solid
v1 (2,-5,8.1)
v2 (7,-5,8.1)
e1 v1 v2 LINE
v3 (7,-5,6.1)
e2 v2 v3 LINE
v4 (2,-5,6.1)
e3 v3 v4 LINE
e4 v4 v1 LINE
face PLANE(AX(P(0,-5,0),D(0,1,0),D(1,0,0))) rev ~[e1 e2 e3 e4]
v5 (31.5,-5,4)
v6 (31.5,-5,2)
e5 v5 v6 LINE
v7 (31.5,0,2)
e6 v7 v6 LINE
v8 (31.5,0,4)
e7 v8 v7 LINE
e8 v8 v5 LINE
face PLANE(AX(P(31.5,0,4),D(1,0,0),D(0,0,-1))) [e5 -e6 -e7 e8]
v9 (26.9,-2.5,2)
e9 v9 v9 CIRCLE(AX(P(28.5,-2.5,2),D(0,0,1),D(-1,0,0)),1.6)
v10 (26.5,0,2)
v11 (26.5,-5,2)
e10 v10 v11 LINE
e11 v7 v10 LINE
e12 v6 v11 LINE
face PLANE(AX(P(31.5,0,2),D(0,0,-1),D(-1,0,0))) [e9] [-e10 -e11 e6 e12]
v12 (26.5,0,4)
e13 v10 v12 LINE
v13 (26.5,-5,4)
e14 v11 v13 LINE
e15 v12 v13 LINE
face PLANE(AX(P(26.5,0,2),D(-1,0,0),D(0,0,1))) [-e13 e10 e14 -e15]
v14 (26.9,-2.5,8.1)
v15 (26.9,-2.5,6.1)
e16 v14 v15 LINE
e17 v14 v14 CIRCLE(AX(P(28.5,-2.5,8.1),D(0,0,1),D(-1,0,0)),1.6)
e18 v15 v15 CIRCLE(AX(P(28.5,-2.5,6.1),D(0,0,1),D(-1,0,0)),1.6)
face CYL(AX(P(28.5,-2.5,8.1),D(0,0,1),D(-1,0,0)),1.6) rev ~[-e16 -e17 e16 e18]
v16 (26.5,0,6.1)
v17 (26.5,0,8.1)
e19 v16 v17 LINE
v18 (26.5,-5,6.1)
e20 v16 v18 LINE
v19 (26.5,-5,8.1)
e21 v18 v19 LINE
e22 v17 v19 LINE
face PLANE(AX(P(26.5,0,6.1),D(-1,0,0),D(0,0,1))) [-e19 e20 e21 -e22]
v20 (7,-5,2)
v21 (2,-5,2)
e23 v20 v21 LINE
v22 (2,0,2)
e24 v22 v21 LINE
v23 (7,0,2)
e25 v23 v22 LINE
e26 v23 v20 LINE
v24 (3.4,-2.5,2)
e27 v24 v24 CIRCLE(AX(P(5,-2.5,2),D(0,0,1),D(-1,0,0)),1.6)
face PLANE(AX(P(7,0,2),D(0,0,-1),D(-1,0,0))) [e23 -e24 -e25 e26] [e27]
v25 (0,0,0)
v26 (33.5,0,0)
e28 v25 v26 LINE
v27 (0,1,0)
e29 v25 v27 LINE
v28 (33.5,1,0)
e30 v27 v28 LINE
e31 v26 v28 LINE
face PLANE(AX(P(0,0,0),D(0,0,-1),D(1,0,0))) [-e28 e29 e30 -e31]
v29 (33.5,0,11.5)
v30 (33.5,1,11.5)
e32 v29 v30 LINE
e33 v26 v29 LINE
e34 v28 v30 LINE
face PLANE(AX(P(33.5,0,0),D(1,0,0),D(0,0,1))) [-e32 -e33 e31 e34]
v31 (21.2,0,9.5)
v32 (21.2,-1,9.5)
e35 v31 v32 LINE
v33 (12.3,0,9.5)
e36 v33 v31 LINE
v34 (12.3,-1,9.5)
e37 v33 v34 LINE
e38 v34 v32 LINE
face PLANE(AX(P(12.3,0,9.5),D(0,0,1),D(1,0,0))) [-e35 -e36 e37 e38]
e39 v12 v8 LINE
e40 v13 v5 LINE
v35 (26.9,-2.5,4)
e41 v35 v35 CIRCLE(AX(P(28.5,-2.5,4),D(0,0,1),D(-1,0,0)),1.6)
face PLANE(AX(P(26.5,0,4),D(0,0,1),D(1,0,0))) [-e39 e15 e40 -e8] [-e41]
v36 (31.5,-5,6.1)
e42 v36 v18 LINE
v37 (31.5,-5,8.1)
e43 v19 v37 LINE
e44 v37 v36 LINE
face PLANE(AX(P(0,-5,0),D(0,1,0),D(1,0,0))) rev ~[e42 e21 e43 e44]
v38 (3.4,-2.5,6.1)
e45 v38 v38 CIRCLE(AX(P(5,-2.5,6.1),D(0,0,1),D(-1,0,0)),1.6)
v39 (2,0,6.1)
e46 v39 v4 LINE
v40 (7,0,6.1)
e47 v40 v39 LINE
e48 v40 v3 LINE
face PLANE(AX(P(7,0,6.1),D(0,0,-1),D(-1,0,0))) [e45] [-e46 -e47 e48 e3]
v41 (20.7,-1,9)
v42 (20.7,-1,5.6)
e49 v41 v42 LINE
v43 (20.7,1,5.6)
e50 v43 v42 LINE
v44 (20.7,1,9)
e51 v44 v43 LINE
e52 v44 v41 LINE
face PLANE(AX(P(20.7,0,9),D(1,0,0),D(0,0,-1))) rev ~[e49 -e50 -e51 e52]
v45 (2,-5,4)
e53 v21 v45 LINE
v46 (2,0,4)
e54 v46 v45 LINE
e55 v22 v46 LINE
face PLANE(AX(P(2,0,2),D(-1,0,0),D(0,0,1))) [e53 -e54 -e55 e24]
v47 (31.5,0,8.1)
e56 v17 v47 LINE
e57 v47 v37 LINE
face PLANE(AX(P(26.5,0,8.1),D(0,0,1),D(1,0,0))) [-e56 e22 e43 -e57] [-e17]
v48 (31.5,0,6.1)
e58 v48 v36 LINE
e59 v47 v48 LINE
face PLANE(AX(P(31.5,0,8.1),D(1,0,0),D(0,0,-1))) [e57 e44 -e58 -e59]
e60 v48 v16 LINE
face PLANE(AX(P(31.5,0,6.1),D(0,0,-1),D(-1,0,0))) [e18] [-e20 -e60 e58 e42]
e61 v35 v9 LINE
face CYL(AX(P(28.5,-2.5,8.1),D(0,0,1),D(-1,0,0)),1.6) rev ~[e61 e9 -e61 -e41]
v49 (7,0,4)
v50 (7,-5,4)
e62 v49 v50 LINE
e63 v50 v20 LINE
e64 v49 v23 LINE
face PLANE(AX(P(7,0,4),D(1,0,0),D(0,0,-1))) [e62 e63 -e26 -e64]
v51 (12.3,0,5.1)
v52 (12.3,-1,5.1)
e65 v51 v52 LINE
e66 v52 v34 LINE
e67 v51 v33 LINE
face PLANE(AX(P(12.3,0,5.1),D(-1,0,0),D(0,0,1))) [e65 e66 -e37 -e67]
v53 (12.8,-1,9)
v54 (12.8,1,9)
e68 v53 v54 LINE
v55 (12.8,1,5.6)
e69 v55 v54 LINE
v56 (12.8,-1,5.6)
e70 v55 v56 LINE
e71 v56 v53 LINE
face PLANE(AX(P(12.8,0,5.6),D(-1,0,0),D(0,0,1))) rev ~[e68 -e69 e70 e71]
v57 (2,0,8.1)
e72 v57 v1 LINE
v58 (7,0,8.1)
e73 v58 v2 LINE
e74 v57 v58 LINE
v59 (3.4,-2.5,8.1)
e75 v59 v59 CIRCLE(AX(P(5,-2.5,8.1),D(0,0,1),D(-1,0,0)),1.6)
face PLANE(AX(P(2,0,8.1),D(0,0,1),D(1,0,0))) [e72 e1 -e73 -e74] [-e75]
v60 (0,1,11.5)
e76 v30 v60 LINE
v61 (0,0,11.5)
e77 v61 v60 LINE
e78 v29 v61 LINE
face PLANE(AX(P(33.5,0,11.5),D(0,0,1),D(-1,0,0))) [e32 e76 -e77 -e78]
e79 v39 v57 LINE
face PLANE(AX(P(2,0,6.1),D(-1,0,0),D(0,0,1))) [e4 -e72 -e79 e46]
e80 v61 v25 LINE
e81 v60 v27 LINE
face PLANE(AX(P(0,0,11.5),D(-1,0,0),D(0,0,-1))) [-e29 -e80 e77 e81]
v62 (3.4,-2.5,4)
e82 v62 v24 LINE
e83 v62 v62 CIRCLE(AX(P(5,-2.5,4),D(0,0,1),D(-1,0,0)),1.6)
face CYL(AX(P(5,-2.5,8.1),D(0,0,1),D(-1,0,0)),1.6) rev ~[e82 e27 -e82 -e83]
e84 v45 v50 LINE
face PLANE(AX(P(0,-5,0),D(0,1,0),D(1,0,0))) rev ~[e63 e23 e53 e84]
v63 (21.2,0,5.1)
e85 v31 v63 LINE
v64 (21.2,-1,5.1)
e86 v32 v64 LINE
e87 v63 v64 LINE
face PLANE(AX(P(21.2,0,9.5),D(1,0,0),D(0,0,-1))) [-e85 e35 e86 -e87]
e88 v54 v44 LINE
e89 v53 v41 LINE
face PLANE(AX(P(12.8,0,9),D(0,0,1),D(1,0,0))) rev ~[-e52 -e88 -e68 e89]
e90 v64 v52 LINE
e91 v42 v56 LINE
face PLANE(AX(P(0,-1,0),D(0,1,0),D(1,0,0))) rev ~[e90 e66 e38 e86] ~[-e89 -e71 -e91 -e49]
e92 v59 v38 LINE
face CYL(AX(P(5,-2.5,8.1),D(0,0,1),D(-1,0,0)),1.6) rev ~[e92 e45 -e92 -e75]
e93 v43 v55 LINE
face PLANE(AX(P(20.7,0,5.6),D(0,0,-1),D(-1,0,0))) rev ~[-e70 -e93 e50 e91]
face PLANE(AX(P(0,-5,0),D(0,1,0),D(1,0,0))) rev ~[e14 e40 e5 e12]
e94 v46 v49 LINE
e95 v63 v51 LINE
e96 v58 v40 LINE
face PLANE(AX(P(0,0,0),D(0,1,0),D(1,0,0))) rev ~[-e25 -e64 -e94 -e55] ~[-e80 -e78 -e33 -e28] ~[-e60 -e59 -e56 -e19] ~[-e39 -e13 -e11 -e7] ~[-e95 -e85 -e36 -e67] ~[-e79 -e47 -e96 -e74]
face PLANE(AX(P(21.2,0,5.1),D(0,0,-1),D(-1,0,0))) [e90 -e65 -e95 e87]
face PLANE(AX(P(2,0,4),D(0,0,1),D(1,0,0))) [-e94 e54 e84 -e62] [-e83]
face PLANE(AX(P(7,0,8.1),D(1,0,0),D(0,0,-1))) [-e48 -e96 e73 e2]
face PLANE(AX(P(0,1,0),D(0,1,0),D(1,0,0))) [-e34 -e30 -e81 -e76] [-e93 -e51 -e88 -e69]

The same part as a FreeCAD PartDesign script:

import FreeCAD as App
import Part
import Sketcher

doc = App.newDocument("Part")
body = doc.addObject("PartDesign::Body", "Body")

# Sketch on XZ plane
sketch1 = doc.addObject("Sketcher::SketchObject", "Sketch")
body.addObject(sketch1)
sketch1.AttachmentSupport = (doc.XZ_Plane, [""])
sketch1.MapMode = "FlatFace"
sketch1.addGeometry([
    Part.LineSegment(App.Vector(33.5, 0, 0), App.Vector(0, 0, 0)),  # 0
    Part.LineSegment(App.Vector(0, 0, 0), App.Vector(0, 11.5, 0)),  # 1
    Part.LineSegment(App.Vector(0, 11.5, 0), App.Vector(33.5, 11.5, 0)),  # 2
    Part.LineSegment(App.Vector(33.5, 11.5, 0), App.Vector(33.5, 0, 0)),  # 3
    Part.LineSegment(App.Vector(20.7, 9, 0), App.Vector(12.8, 9, 0)),  # 4
    Part.LineSegment(App.Vector(12.8, 9, 0), App.Vector(12.8, 5.6, 0)),  # 5
    Part.LineSegment(App.Vector(12.8, 5.6, 0), App.Vector(20.7, 5.6, 0)),  # 6
    Part.LineSegment(App.Vector(20.7, 5.6, 0), App.Vector(20.7, 9, 0)),  # 7
], False)
sketch1.addConstraint([
    Sketcher.Constraint("Coincident", 0, 2, 1, 1),
    Sketcher.Constraint("Coincident", 1, 2, 2, 1),
    Sketcher.Constraint("Coincident", 2, 2, 3, 1),
    Sketcher.Constraint("Coincident", 3, 2, 0, 1),
    Sketcher.Constraint("Coincident", 4, 2, 5, 1),
    Sketcher.Constraint("Coincident", 5, 2, 6, 1),
    Sketcher.Constraint("Coincident", 6, 2, 7, 1),
    Sketcher.Constraint("Coincident", 7, 2, 4, 1),
    Sketcher.Constraint("Horizontal", 0),
    Sketcher.Constraint("Vertical", 1),
    Sketcher.Constraint("Horizontal", 2),
    Sketcher.Constraint("Vertical", 3),
    Sketcher.Constraint("Horizontal", 4),
    Sketcher.Constraint("Vertical", 5),
    Sketcher.Constraint("Horizontal", 6),
    Sketcher.Constraint("Vertical", 7),
    Sketcher.Constraint("Coincident", 0, 2, -1, 1),
    Sketcher.Constraint("DistanceX", 4, 2, 4, 1, 7.9),
    Sketcher.Constraint("DistanceY", 5, 2, 5, 1, 3.4),
    Sketcher.Constraint("DistanceX", 0, 2, 0, 1, 33.5),
    Sketcher.Constraint("DistanceY", 1, 1, 1, 2, 11.5),
    Sketcher.Constraint("DistanceY", -1, 1, 4, 2, 9.0),
    Sketcher.Constraint("DistanceX", -1, 1, 4, 2, 12.8),
])
pad1 = doc.addObject("PartDesign::Pad", "Pad")
body.addObject(pad1)
pad1.Profile = sketch1
pad1.Length = 1
pad1.Reversed = True

# Sketch on XZ plane
sketch2 = doc.addObject("Sketcher::SketchObject", "Sketch001")
body.addObject(sketch2)
sketch2.AttachmentSupport = (doc.XZ_Plane, [""])
sketch2.MapMode = "FlatFace"
sketch2.addGeometry([
    Part.LineSegment(App.Vector(12.3, 5.1, 0), App.Vector(12.3, 9.5, 0)),  # 0
    Part.LineSegment(App.Vector(12.3, 9.5, 0), App.Vector(21.2, 9.5, 0)),  # 1
    Part.LineSegment(App.Vector(21.2, 9.5, 0), App.Vector(21.2, 5.1, 0)),  # 2
    Part.LineSegment(App.Vector(21.2, 5.1, 0), App.Vector(12.3, 5.1, 0)),  # 3
    Part.LineSegment(App.Vector(20.7, 9, 0), App.Vector(12.8, 9, 0)),  # 4
    Part.LineSegment(App.Vector(12.8, 9, 0), App.Vector(12.8, 5.6, 0)),  # 5
    Part.LineSegment(App.Vector(12.8, 5.6, 0), App.Vector(20.7, 5.6, 0)),  # 6
    Part.LineSegment(App.Vector(20.7, 5.6, 0), App.Vector(20.7, 9, 0)),  # 7
], False)
sketch2.addConstraint([
    Sketcher.Constraint("Coincident", 0, 2, 1, 1),
    Sketcher.Constraint("Coincident", 1, 2, 2, 1),
    Sketcher.Constraint("Coincident", 2, 2, 3, 1),
    Sketcher.Constraint("Coincident", 3, 2, 0, 1),
    Sketcher.Constraint("Coincident", 4, 2, 5, 1),
    Sketcher.Constraint("Coincident", 5, 2, 6, 1),
    Sketcher.Constraint("Coincident", 6, 2, 7, 1),
    Sketcher.Constraint("Coincident", 7, 2, 4, 1),
    Sketcher.Constraint("Vertical", 0),
    Sketcher.Constraint("Horizontal", 1),
    Sketcher.Constraint("Vertical", 2),
    Sketcher.Constraint("Horizontal", 3),
    Sketcher.Constraint("Horizontal", 4),
    Sketcher.Constraint("Vertical", 5),
    Sketcher.Constraint("Horizontal", 6),
    Sketcher.Constraint("Vertical", 7),
    Sketcher.Constraint("DistanceX", 1, 1, 1, 2, 8.9),
    Sketcher.Constraint("DistanceX", 4, 2, 4, 1, 7.9),
    Sketcher.Constraint("DistanceY", 0, 1, 0, 2, 4.4),
    Sketcher.Constraint("DistanceY", 5, 2, 5, 1, 3.4),
    Sketcher.Constraint("DistanceX", 0, 2, 4, 2, 0.5),
    Sketcher.Constraint("DistanceY", 4, 2, 0, 2, 0.5),
    Sketcher.Constraint("DistanceY", -1, 1, 4, 2, 9.0),
    Sketcher.Constraint("DistanceX", -1, 1, 0, 2, 12.3),
])
pad2 = doc.addObject("PartDesign::Pad", "Pad001")
body.addObject(pad2)
pad2.Profile = sketch2
pad2.Length = 1

# Sketch on XZ plane
sketch3 = doc.addObject("Sketcher::SketchObject", "Sketch002")
body.addObject(sketch3)
sketch3.AttachmentSupport = (doc.XZ_Plane, [""])
sketch3.MapMode = "FlatFace"
sketch3.addGeometry([
    Part.LineSegment(App.Vector(2, 6.1, 0), App.Vector(2, 8.1, 0)),  # 0
    Part.LineSegment(App.Vector(2, 8.1, 0), App.Vector(7, 8.1, 0)),  # 1
    Part.LineSegment(App.Vector(7, 8.1, 0), App.Vector(7, 6.1, 0)),  # 2
    Part.LineSegment(App.Vector(7, 6.1, 0), App.Vector(2, 6.1, 0)),  # 3
    Part.LineSegment(App.Vector(2, 2, 0), App.Vector(2, 4, 0)),  # 4
    Part.LineSegment(App.Vector(2, 4, 0), App.Vector(7, 4, 0)),  # 5
    Part.LineSegment(App.Vector(7, 4, 0), App.Vector(7, 2, 0)),  # 6
    Part.LineSegment(App.Vector(7, 2, 0), App.Vector(2, 2, 0)),  # 7
    Part.LineSegment(App.Vector(26.5, 6.1, 0), App.Vector(26.5, 8.1, 0)),  # 8
    Part.LineSegment(App.Vector(26.5, 8.1, 0), App.Vector(31.5, 8.1, 0)),  # 9
    Part.LineSegment(App.Vector(31.5, 8.1, 0), App.Vector(31.5, 6.1, 0)),  # 10
    Part.LineSegment(App.Vector(31.5, 6.1, 0), App.Vector(26.5, 6.1, 0)),  # 11
    Part.LineSegment(App.Vector(26.5, 2, 0), App.Vector(26.5, 4, 0)),  # 12
    Part.LineSegment(App.Vector(26.5, 4, 0), App.Vector(31.5, 4, 0)),  # 13
    Part.LineSegment(App.Vector(31.5, 4, 0), App.Vector(31.5, 2, 0)),  # 14
    Part.LineSegment(App.Vector(31.5, 2, 0), App.Vector(26.5, 2, 0)),  # 15
], False)
sketch3.addConstraint([
    Sketcher.Constraint("Coincident", 0, 2, 1, 1),
    Sketcher.Constraint("Coincident", 1, 2, 2, 1),
    Sketcher.Constraint("Coincident", 2, 2, 3, 1),
    Sketcher.Constraint("Coincident", 3, 2, 0, 1),
    Sketcher.Constraint("Coincident", 4, 2, 5, 1),
    Sketcher.Constraint("Coincident", 5, 2, 6, 1),
    Sketcher.Constraint("Coincident", 6, 2, 7, 1),
    Sketcher.Constraint("Coincident", 7, 2, 4, 1),
    Sketcher.Constraint("Coincident", 8, 2, 9, 1),
    Sketcher.Constraint("Coincident", 9, 2, 10, 1),
    Sketcher.Constraint("Coincident", 10, 2, 11, 1),
    Sketcher.Constraint("Coincident", 11, 2, 8, 1),
    Sketcher.Constraint("Coincident", 12, 2, 13, 1),
    Sketcher.Constraint("Coincident", 13, 2, 14, 1),
    Sketcher.Constraint("Coincident", 14, 2, 15, 1),
    Sketcher.Constraint("Coincident", 15, 2, 12, 1),
    Sketcher.Constraint("Vertical", 0),
    Sketcher.Constraint("Horizontal", 1),
    Sketcher.Constraint("Vertical", 2),
    Sketcher.Constraint("Horizontal", 3),
    Sketcher.Constraint("Vertical", 4),
    Sketcher.Constraint("Horizontal", 5),
    Sketcher.Constraint("Vertical", 6),
    Sketcher.Constraint("Horizontal", 7),
    Sketcher.Constraint("Vertical", 8),
    Sketcher.Constraint("Horizontal", 9),
    Sketcher.Constraint("Vertical", 10),
    Sketcher.Constraint("Horizontal", 11),
    Sketcher.Constraint("Vertical", 12),
    Sketcher.Constraint("Horizontal", 13),
    Sketcher.Constraint("Vertical", 14),
    Sketcher.Constraint("Horizontal", 15),
    Sketcher.Constraint("Horizontal", 1, 2, 8, 2),
    Sketcher.Constraint("Horizontal", 3, 2, 10, 2),
    Sketcher.Constraint("Horizontal", 5, 2, 12, 2),
    Sketcher.Constraint("Horizontal", 7, 2, 14, 2),
    Sketcher.Constraint("Vertical", 3, 2, 4, 2),
    Sketcher.Constraint("Vertical", 2, 2, 5, 2),
    Sketcher.Constraint("Vertical", 11, 2, 12, 2),
    Sketcher.Constraint("Vertical", 10, 2, 13, 2),
    Sketcher.Constraint("Equal", 7, 9),
    Sketcher.Constraint("Equal", 2, 4),
    Sketcher.Constraint("DistanceX", 1, 1, 1, 2, 5.0),
    Sketcher.Constraint("DistanceY", 0, 1, 0, 2, 2.0),
    Sketcher.Constraint("DistanceX", -1, 1, 0, 2, 2.0),
    Sketcher.Constraint("DistanceY", -1, 1, 6, 2, 2.0),
    Sketcher.Constraint("DistanceY", -1, 1, 0, 2, 8.1),
    Sketcher.Constraint("DistanceX", -1, 1, 8, 2, 26.5),
])
pad3 = doc.addObject("PartDesign::Pad", "Pad002")
body.addObject(pad3)
pad3.Profile = sketch3
pad3.Length = 5

# Sketch on XY plane
sketch4 = doc.addObject("Sketcher::SketchObject", "Sketch003")
body.addObject(sketch4)
sketch4.AttachmentSupport = (doc.XY_Plane, [""])
sketch4.MapMode = "FlatFace"
sketch4.AttachmentOffset = App.Placement(App.Vector(0, 0, 8.1), App.Rotation())
sketch4.addGeometry([
    Part.Circle(App.Vector(5, -2.5, 0), App.Vector(0, 0, 1), 1.6),
    Part.Circle(App.Vector(28.5, -2.5, 0), App.Vector(0, 0, 1), 1.6),
], False)
sketch4.addConstraint([
    Sketcher.Constraint("Equal", 0, 1),
    Sketcher.Constraint("Horizontal", 0, 3, 1, 3),
    Sketcher.Constraint("Diameter", 0, 3.2),
    Sketcher.Constraint("DistanceY", 0, 3, -1, 1, 2.5),
    Sketcher.Constraint("DistanceX", -1, 1, 0, 3, 5.0),
    Sketcher.Constraint("DistanceX", -1, 1, 1, 3, 28.5),
])
pocket1 = doc.addObject("PartDesign::Pocket", "Pocket")
body.addObject(pocket1)
pocket1.Profile = sketch4
pocket1.Length = 8

doc.recompute()
